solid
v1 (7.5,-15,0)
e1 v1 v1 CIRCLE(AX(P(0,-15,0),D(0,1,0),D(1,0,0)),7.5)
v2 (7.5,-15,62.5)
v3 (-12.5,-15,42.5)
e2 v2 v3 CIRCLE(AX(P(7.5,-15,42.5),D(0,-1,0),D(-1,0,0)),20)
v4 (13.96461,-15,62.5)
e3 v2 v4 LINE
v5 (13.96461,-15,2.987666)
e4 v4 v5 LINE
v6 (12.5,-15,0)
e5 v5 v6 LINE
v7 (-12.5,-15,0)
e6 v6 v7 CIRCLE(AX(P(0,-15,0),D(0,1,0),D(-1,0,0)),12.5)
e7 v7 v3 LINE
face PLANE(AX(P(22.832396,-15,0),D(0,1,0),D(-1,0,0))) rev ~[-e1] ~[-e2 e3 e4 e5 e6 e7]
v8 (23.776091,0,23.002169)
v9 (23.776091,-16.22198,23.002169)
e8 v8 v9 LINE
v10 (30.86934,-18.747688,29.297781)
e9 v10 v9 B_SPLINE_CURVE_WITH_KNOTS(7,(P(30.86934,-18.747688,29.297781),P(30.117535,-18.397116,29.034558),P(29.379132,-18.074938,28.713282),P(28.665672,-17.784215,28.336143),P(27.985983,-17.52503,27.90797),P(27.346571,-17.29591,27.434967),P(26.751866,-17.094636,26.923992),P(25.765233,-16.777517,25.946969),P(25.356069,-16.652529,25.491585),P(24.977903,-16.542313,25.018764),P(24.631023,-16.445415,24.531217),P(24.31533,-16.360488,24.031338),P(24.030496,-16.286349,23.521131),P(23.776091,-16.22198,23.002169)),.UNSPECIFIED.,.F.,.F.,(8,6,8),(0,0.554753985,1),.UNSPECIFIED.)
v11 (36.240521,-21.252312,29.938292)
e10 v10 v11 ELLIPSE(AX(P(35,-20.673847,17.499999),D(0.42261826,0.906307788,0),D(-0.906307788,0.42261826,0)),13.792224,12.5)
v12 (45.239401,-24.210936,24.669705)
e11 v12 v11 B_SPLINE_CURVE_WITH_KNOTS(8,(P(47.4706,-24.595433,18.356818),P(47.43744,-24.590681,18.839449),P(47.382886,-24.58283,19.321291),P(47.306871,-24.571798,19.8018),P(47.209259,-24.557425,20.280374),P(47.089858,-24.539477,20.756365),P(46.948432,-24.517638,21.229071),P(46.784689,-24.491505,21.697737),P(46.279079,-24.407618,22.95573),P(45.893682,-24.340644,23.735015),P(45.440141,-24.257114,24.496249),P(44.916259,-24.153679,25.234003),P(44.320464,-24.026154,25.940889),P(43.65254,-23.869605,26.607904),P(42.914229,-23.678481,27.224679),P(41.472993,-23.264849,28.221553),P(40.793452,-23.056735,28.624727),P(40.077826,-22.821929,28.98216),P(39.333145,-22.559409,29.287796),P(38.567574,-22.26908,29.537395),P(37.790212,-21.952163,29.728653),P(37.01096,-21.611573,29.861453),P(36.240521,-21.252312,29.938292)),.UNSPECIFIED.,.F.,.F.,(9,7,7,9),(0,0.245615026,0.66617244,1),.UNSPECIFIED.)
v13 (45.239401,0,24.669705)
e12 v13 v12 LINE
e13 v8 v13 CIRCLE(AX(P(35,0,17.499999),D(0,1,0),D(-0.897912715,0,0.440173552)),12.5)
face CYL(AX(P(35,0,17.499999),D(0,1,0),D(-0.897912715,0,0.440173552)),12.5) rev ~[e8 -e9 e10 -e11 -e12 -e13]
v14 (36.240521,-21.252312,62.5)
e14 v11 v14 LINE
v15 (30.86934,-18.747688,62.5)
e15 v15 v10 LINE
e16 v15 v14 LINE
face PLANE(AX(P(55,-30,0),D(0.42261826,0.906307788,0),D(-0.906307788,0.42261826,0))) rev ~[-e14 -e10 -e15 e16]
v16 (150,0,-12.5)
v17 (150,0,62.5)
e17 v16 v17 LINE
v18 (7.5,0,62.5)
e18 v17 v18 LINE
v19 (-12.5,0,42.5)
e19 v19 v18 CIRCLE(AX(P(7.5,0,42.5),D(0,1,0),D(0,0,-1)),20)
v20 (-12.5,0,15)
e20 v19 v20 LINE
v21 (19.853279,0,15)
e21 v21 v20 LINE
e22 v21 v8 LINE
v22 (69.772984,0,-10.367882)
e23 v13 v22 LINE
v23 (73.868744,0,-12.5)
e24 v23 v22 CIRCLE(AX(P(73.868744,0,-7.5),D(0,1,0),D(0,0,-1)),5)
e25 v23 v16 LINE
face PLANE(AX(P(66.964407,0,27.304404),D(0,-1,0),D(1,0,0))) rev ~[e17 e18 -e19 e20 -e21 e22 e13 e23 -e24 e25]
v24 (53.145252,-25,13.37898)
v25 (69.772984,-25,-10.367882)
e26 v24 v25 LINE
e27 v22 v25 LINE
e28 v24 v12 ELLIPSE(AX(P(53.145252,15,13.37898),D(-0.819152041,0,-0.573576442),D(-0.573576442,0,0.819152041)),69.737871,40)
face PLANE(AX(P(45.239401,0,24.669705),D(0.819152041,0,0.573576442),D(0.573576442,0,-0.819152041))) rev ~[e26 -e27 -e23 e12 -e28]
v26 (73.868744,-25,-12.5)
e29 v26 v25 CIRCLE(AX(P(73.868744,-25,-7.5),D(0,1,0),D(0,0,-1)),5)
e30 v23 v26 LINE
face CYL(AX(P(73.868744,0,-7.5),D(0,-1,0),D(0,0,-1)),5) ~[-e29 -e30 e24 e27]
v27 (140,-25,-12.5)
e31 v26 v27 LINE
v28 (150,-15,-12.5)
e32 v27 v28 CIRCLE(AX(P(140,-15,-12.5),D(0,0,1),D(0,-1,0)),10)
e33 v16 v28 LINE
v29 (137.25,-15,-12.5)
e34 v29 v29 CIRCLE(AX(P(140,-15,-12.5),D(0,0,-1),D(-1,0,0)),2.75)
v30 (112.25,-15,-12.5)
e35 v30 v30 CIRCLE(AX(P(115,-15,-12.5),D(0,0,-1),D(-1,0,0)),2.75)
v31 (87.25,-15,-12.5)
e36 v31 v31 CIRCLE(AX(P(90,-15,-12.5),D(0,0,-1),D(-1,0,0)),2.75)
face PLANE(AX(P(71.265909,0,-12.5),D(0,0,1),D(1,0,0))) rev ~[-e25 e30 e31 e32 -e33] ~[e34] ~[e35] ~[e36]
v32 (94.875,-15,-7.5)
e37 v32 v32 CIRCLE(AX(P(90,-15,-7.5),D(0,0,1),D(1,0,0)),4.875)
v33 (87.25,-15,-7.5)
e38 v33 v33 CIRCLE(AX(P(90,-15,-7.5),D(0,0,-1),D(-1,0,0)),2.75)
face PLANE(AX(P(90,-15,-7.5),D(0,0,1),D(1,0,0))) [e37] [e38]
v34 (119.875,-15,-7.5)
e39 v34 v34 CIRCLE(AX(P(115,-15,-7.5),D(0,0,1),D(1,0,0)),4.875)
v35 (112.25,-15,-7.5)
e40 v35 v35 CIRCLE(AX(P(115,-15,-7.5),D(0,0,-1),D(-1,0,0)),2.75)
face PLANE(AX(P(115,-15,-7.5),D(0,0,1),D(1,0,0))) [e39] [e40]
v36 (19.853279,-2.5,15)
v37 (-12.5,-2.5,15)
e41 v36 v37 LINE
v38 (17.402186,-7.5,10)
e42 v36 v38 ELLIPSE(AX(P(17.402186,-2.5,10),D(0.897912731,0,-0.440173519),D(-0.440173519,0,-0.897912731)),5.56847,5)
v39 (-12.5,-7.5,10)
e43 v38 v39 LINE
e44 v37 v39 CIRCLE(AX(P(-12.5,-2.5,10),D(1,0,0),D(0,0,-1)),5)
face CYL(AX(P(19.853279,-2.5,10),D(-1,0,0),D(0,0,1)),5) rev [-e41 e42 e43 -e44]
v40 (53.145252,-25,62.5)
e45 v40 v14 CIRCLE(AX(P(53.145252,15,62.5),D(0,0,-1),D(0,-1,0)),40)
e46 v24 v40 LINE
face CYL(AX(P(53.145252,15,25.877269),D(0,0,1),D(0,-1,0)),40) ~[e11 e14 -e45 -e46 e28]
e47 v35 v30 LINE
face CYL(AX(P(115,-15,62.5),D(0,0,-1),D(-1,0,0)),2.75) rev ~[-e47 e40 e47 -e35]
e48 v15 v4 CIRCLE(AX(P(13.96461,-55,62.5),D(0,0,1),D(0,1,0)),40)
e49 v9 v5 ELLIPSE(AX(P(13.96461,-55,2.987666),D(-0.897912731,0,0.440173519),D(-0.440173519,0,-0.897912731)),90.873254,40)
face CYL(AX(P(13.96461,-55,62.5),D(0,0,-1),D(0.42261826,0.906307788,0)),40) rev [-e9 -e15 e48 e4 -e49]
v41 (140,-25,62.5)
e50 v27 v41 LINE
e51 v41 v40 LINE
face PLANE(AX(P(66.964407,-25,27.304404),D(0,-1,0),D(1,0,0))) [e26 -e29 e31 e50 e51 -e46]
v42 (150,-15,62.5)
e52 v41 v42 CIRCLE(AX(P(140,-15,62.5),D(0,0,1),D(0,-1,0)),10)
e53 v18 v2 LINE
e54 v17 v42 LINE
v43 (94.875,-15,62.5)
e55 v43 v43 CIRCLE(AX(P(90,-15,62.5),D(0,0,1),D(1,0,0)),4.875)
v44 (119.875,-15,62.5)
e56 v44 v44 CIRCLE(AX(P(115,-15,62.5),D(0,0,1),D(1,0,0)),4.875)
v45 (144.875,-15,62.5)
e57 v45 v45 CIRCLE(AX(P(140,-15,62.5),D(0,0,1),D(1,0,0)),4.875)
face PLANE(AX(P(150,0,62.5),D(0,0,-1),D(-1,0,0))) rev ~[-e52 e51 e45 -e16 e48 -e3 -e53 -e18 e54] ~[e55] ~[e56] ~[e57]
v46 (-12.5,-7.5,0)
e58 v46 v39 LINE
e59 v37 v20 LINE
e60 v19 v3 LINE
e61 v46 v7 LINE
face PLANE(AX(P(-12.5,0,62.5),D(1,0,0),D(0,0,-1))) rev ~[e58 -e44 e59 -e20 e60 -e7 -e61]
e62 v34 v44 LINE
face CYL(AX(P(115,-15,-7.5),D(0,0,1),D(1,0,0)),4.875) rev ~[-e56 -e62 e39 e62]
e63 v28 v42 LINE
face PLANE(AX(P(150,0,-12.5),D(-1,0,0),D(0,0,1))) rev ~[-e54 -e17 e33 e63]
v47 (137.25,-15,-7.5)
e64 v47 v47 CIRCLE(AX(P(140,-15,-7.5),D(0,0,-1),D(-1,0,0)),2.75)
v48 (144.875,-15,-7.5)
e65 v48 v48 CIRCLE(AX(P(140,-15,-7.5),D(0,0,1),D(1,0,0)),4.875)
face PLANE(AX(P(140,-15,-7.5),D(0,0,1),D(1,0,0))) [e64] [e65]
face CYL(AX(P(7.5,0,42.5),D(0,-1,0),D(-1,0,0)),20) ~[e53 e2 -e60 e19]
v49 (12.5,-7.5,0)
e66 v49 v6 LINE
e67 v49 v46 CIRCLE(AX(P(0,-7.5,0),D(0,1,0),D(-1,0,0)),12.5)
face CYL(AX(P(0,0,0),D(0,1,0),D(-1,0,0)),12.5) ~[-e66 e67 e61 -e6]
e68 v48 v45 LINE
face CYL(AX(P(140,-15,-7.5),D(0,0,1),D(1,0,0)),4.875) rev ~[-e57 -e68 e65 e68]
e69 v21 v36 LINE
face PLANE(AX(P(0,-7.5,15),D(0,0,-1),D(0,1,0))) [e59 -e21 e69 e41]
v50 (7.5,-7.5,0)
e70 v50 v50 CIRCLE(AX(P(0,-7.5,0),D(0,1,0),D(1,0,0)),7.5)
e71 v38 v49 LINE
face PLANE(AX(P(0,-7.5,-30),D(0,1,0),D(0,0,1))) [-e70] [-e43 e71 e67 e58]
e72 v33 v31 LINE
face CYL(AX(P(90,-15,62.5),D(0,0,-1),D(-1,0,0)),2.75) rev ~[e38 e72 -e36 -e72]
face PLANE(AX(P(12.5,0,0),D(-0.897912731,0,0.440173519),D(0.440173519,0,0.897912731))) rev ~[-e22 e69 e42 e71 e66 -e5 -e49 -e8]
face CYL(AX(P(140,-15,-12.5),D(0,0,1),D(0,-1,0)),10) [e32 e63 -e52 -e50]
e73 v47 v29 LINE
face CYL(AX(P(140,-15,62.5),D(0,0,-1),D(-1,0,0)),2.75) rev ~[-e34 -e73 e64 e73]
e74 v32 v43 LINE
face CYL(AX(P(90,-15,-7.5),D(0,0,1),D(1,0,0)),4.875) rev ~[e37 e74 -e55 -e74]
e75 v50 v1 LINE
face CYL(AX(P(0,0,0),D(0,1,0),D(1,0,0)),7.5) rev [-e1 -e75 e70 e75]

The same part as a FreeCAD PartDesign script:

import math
import FreeCAD as App
import Part
import Sketcher

V = App.Vector
Q = App.Units.Quantity


def edges_at(feature, points):
    """Names of the edges that pass closest to the given points."""
    edges = feature.Shape.Edges
    near = lambda p: min(range(len(edges)), key=lambda i: edges[i].distToShape(Part.Vertex(*p))[0])
    return sorted({f"Edge{near(p) + 1}" for p in points})


def add_polygon(sketch, points):
    """Adds a closed chain of lines whose ends are joined by coincident constraints."""
    first, n = sketch.GeometryCount, len(points)
    for a, b in zip(points, points[1:] + points[:1]):
        sketch.addGeometry(Part.LineSegment(App.Vector(*a, 0), App.Vector(*b, 0)), False)
    for i in range(n):
        sketch.addConstraint(Sketcher.Constraint("Coincident", first + i, 2, first + (i + 1) % n, 1))

doc = App.newDocument("Part")
body = doc.addObject("PartDesign::Body", "Body")

sketch1 = body.newObject("Sketcher::SketchObject", "Sketch")
sketch1.AttachmentSupport = (doc.getObject("XZ_Plane"), [""])
sketch1.MapMode = "FlatFace"
sketch1.addGeometry(Part.LineSegment(V(45, 25, 0), V(71, -12, 0)), False)
sketch1.addGeometry(Part.LineSegment(V(71, -12, 0), V(150, -12, 0)), False)
sketch1.addGeometry(Part.LineSegment(V(150, -12, 0), V(150, 62, 0)), False)
sketch1.addGeometry(Part.LineSegment(V(150, 62, 0), V(-12, 62, 0)), False)
sketch1.addGeometry(Part.LineSegment(V(-12, 62, 0), V(-12, 0, 0)), False)
sketch1.addGeometry(Part.ArcOfCircle(Part.Circle(V(0, 0, 0), V(0, 0, 1), 12), math.radians(180), math.radians(360)), False)
sketch1.addGeometry(Part.LineSegment(V(12, 0, 0), V(24, 23, 0)), False)
sketch1.addGeometry(Part.ArcOfCircle(Part.Circle(V(35, 17, 0), V(0, 0, 1), 13), math.radians(35), math.radians(154)), False)
sketch1.addGeometry(Part.Circle(V(0, 0, 0), V(0, 0, 1), 8), False)
sketch1.addConstraint(Sketcher.Constraint("Coincident", 0, 2, 1, 1))
sketch1.addConstraint(Sketcher.Constraint("Coincident", 1, 2, 2, 1))
sketch1.addConstraint(Sketcher.Constraint("Coincident", 2, 2, 3, 1))
sketch1.addConstraint(Sketcher.Constraint("Coincident", 3, 2, 4, 1))
sketch1.addConstraint(Sketcher.Constraint("Tangent", 4, 2, 5, 1))
sketch1.addConstraint(Sketcher.Constraint("Coincident", 5, 2, 6, 1))
sketch1.addConstraint(Sketcher.Constraint("Tangent", 6, 2, 7, 2))
sketch1.addConstraint(Sketcher.Constraint("Tangent", 7, 1, 0, 1))
sketch1.addConstraint(Sketcher.Constraint("Horizontal", 1))
sketch1.addConstraint(Sketcher.Constraint("Vertical", 2))
sketch1.addConstraint(Sketcher.Constraint("Horizontal", 3))
sketch1.addConstraint(Sketcher.Constraint("Vertical", 4))
sketch1.addConstraint(Sketcher.Constraint("Coincident", 5, 3, -1, 1))
sketch1.addConstraint(Sketcher.Constraint("Coincident", 8, 3, -1, 1))
sketch1.addConstraint(Sketcher.Constraint("Equal", 5, 7))
sketch1.addConstraint(Sketcher.Constraint("PointOnObject", 5, 2, -1))
sketch1.addConstraint(Sketcher.Constraint("Diameter", 8, Q("15 mm")))
sketch1.addConstraint(Sketcher.Constraint("Radius", 5, Q("12.5 mm")))
sketch1.addConstraint(Sketcher.Constraint("DistanceY", 2, 1, 2, 2, Q("75 mm")))
sketch1.addConstraint(Sketcher.Constraint("Angle", 0, Q("-55 deg")))
sketch1.addConstraint(Sketcher.Constraint("DistanceX", 3, 2, 3, 1, Q("162.5 mm")))
sketch1.addConstraint(Sketcher.Constraint("DistanceY", 4, 2, 4, 1, Q("62.5 mm")))
sketch1.addConstraint(Sketcher.Constraint("DistanceX", -1, 1, 7, 3, Q("35 mm")))
sketch1.addConstraint(Sketcher.Constraint("DistanceY", 0, 2, 7, 3, Q("29.999999 mm")))
pad1 = body.newObject("PartDesign::Pad", "Pad")
pad1.Profile = sketch1
pad1.Length = 25

sketch2 = body.newObject("Sketcher::SketchObject", "Sketch001")
sketch2.AttachmentSupport = (doc.getObject("YZ_Plane"), [""])
sketch2.MapMode = "FlatFace"
add_polygon(sketch2, [(-8, 15), (-8, -30), (0, -30), (0, 15)])
sketch2.addConstraint(Sketcher.Constraint("Vertical", 0))
sketch2.addConstraint(Sketcher.Constraint("Horizontal", 1))
sketch2.addConstraint(Sketcher.Constraint("Vertical", 2))
sketch2.addConstraint(Sketcher.Constraint("Horizontal", 3))
sketch2.addConstraint(Sketcher.Constraint("PointOnObject", 1, 2, -2))
sketch2.addConstraint(Sketcher.Constraint("DistanceY", 0, 2, 0, 1, Q("45 mm")))
sketch2.addConstraint(Sketcher.Constraint("DistanceX", 1, 1, 1, 2, Q("7.5 mm")))
sketch2.addConstraint(Sketcher.Constraint("DistanceY", 0, 2, -1, 1, Q("30 mm")))
pocket1 = body.newObject("PartDesign::Pocket", "Pocket")
pocket1.Profile = sketch2
pocket1.Length = 50
pocket1.Midplane = True

sketch3 = body.newObject("Sketcher::SketchObject", "Sketch002")
sketch3.AttachmentSupport = (doc.getObject("XY_Plane"), [""])
sketch3.MapMode = "FlatFace"
sketch3.AttachmentOffset = App.Placement(V(0, 0, 62.5), App.Rotation())
sketch3.addGeometry(Part.Circle(V(140, -15, 0), V(0, 0, 1), 2.8), False)
sketch3.addGeometry(Part.Circle(V(115, -15, 0), V(0, 0, 1), 2.8), False)
sketch3.addGeometry(Part.Circle(V(90, -15, 0), V(0, 0, 1), 2.8), False)
sketch3.addConstraint(Sketcher.Constraint("Equal", 0, 1))
sketch3.addConstraint(Sketcher.Constraint("Equal", 1, 2))
sketch3.addConstraint(Sketcher.Constraint("Horizontal", 0, 3, 1, 3))
sketch3.addConstraint(Sketcher.Constraint("Horizontal", 1, 3, 2, 3))
sketch3.addConstraint(Sketcher.Constraint("Diameter", 0, Q("5.5 mm")))
sketch3.addConstraint(Sketcher.Constraint("DistanceX", -1, 1, 0, 3, Q("140 mm")))
sketch3.addConstraint(Sketcher.Constraint("DistanceY", 0, 3, -1, 1, Q("15 mm")))
sketch3.addConstraint(Sketcher.Constraint("DistanceX", -1, 1, 1, 3, Q("115 mm")))
sketch3.addConstraint(Sketcher.Constraint("DistanceX", -1, 1, 2, 3, Q("90 mm")))
doc.recompute()
hole = body.newObject("PartDesign::Hole", "Hole")
hole.Profile = sketch3
hole.ThreadType = "None"
hole.Diameter = 5.5
hole.DepthType = "ThroughAll"
hole.HoleCutType = "Counterbore"
hole.HoleCutDiameter = 9.75
hole.HoleCutDepth = 70
doc.recompute()

fillet = body.newObject("PartDesign::Fillet", "Fillet")
fillet.Base = (hole, edges_at(hole, [(-12.5, -12.5, 62.5)]))
fillet.Radius = 20
doc.recompute()

fillet2 = body.newObject("PartDesign::Fillet", "Fillet001")
fillet2.Base = (fillet, edges_at(fillet, [(3.677, -7.5, 15)]))
fillet2.Radius = 5
doc.recompute()

fillet3 = body.newObject("PartDesign::Fillet", "Fillet002")
fillet3.Base = (fillet2, edges_at(fillet2, [(150, -25, 25)]))
fillet3.Radius = 10
doc.recompute()

fillet4 = body.newObject("PartDesign::Fillet", "Fillet003")
fillet4.Base = (fillet3, edges_at(fillet3, [(71.266, -12.5, -12.5)]))
fillet4.Radius = 5

sketch4 = body.newObject("Sketcher::SketchObject", "Sketch003")
sketch4.AttachmentSupport = (doc.getObject("XY_Plane"), [""])
sketch4.MapMode = "FlatFace"
add_polygon(sketch4, [(23, -15), (-25, -15), (-25, -30), (55, -30)])
sketch4.addConstraint(Sketcher.Constraint("Horizontal", 0))
sketch4.addConstraint(Sketcher.Constraint("Vertical", 1))
sketch4.addConstraint(Sketcher.Constraint("Horizontal", 2))
sketch4.addConstraint(Sketcher.Constraint("DistanceX", 2, 1, 2, 2, Q("80 mm")))
sketch4.addConstraint(Sketcher.Constraint("DistanceY", 1, 2, 1, 1, Q("15 mm")))
sketch4.addConstraint(Sketcher.Constraint("Angle", 3, Q("155 deg")))
sketch4.addConstraint(Sketcher.Constraint("DistanceX", 0, 2, -1, 1, Q("25 mm")))
sketch4.addConstraint(Sketcher.Constraint("DistanceY", 0, 2, -1, 1, Q("15 mm")))
pocket2 = body.newObject("PartDesign::Pocket", "Pocket001")
pocket2.Profile = sketch4
pocket2.Length = 200
pocket2.Midplane = True
doc.recompute()

fillet5 = body.newObject("PartDesign::Fillet", "Fillet004")
fillet5.Base = (pocket2, edges_at(pocket2, [(22.832, -15, 41.789), (44.277, -25, 44.189)]))
fillet5.Radius = 40

doc.recompute()
